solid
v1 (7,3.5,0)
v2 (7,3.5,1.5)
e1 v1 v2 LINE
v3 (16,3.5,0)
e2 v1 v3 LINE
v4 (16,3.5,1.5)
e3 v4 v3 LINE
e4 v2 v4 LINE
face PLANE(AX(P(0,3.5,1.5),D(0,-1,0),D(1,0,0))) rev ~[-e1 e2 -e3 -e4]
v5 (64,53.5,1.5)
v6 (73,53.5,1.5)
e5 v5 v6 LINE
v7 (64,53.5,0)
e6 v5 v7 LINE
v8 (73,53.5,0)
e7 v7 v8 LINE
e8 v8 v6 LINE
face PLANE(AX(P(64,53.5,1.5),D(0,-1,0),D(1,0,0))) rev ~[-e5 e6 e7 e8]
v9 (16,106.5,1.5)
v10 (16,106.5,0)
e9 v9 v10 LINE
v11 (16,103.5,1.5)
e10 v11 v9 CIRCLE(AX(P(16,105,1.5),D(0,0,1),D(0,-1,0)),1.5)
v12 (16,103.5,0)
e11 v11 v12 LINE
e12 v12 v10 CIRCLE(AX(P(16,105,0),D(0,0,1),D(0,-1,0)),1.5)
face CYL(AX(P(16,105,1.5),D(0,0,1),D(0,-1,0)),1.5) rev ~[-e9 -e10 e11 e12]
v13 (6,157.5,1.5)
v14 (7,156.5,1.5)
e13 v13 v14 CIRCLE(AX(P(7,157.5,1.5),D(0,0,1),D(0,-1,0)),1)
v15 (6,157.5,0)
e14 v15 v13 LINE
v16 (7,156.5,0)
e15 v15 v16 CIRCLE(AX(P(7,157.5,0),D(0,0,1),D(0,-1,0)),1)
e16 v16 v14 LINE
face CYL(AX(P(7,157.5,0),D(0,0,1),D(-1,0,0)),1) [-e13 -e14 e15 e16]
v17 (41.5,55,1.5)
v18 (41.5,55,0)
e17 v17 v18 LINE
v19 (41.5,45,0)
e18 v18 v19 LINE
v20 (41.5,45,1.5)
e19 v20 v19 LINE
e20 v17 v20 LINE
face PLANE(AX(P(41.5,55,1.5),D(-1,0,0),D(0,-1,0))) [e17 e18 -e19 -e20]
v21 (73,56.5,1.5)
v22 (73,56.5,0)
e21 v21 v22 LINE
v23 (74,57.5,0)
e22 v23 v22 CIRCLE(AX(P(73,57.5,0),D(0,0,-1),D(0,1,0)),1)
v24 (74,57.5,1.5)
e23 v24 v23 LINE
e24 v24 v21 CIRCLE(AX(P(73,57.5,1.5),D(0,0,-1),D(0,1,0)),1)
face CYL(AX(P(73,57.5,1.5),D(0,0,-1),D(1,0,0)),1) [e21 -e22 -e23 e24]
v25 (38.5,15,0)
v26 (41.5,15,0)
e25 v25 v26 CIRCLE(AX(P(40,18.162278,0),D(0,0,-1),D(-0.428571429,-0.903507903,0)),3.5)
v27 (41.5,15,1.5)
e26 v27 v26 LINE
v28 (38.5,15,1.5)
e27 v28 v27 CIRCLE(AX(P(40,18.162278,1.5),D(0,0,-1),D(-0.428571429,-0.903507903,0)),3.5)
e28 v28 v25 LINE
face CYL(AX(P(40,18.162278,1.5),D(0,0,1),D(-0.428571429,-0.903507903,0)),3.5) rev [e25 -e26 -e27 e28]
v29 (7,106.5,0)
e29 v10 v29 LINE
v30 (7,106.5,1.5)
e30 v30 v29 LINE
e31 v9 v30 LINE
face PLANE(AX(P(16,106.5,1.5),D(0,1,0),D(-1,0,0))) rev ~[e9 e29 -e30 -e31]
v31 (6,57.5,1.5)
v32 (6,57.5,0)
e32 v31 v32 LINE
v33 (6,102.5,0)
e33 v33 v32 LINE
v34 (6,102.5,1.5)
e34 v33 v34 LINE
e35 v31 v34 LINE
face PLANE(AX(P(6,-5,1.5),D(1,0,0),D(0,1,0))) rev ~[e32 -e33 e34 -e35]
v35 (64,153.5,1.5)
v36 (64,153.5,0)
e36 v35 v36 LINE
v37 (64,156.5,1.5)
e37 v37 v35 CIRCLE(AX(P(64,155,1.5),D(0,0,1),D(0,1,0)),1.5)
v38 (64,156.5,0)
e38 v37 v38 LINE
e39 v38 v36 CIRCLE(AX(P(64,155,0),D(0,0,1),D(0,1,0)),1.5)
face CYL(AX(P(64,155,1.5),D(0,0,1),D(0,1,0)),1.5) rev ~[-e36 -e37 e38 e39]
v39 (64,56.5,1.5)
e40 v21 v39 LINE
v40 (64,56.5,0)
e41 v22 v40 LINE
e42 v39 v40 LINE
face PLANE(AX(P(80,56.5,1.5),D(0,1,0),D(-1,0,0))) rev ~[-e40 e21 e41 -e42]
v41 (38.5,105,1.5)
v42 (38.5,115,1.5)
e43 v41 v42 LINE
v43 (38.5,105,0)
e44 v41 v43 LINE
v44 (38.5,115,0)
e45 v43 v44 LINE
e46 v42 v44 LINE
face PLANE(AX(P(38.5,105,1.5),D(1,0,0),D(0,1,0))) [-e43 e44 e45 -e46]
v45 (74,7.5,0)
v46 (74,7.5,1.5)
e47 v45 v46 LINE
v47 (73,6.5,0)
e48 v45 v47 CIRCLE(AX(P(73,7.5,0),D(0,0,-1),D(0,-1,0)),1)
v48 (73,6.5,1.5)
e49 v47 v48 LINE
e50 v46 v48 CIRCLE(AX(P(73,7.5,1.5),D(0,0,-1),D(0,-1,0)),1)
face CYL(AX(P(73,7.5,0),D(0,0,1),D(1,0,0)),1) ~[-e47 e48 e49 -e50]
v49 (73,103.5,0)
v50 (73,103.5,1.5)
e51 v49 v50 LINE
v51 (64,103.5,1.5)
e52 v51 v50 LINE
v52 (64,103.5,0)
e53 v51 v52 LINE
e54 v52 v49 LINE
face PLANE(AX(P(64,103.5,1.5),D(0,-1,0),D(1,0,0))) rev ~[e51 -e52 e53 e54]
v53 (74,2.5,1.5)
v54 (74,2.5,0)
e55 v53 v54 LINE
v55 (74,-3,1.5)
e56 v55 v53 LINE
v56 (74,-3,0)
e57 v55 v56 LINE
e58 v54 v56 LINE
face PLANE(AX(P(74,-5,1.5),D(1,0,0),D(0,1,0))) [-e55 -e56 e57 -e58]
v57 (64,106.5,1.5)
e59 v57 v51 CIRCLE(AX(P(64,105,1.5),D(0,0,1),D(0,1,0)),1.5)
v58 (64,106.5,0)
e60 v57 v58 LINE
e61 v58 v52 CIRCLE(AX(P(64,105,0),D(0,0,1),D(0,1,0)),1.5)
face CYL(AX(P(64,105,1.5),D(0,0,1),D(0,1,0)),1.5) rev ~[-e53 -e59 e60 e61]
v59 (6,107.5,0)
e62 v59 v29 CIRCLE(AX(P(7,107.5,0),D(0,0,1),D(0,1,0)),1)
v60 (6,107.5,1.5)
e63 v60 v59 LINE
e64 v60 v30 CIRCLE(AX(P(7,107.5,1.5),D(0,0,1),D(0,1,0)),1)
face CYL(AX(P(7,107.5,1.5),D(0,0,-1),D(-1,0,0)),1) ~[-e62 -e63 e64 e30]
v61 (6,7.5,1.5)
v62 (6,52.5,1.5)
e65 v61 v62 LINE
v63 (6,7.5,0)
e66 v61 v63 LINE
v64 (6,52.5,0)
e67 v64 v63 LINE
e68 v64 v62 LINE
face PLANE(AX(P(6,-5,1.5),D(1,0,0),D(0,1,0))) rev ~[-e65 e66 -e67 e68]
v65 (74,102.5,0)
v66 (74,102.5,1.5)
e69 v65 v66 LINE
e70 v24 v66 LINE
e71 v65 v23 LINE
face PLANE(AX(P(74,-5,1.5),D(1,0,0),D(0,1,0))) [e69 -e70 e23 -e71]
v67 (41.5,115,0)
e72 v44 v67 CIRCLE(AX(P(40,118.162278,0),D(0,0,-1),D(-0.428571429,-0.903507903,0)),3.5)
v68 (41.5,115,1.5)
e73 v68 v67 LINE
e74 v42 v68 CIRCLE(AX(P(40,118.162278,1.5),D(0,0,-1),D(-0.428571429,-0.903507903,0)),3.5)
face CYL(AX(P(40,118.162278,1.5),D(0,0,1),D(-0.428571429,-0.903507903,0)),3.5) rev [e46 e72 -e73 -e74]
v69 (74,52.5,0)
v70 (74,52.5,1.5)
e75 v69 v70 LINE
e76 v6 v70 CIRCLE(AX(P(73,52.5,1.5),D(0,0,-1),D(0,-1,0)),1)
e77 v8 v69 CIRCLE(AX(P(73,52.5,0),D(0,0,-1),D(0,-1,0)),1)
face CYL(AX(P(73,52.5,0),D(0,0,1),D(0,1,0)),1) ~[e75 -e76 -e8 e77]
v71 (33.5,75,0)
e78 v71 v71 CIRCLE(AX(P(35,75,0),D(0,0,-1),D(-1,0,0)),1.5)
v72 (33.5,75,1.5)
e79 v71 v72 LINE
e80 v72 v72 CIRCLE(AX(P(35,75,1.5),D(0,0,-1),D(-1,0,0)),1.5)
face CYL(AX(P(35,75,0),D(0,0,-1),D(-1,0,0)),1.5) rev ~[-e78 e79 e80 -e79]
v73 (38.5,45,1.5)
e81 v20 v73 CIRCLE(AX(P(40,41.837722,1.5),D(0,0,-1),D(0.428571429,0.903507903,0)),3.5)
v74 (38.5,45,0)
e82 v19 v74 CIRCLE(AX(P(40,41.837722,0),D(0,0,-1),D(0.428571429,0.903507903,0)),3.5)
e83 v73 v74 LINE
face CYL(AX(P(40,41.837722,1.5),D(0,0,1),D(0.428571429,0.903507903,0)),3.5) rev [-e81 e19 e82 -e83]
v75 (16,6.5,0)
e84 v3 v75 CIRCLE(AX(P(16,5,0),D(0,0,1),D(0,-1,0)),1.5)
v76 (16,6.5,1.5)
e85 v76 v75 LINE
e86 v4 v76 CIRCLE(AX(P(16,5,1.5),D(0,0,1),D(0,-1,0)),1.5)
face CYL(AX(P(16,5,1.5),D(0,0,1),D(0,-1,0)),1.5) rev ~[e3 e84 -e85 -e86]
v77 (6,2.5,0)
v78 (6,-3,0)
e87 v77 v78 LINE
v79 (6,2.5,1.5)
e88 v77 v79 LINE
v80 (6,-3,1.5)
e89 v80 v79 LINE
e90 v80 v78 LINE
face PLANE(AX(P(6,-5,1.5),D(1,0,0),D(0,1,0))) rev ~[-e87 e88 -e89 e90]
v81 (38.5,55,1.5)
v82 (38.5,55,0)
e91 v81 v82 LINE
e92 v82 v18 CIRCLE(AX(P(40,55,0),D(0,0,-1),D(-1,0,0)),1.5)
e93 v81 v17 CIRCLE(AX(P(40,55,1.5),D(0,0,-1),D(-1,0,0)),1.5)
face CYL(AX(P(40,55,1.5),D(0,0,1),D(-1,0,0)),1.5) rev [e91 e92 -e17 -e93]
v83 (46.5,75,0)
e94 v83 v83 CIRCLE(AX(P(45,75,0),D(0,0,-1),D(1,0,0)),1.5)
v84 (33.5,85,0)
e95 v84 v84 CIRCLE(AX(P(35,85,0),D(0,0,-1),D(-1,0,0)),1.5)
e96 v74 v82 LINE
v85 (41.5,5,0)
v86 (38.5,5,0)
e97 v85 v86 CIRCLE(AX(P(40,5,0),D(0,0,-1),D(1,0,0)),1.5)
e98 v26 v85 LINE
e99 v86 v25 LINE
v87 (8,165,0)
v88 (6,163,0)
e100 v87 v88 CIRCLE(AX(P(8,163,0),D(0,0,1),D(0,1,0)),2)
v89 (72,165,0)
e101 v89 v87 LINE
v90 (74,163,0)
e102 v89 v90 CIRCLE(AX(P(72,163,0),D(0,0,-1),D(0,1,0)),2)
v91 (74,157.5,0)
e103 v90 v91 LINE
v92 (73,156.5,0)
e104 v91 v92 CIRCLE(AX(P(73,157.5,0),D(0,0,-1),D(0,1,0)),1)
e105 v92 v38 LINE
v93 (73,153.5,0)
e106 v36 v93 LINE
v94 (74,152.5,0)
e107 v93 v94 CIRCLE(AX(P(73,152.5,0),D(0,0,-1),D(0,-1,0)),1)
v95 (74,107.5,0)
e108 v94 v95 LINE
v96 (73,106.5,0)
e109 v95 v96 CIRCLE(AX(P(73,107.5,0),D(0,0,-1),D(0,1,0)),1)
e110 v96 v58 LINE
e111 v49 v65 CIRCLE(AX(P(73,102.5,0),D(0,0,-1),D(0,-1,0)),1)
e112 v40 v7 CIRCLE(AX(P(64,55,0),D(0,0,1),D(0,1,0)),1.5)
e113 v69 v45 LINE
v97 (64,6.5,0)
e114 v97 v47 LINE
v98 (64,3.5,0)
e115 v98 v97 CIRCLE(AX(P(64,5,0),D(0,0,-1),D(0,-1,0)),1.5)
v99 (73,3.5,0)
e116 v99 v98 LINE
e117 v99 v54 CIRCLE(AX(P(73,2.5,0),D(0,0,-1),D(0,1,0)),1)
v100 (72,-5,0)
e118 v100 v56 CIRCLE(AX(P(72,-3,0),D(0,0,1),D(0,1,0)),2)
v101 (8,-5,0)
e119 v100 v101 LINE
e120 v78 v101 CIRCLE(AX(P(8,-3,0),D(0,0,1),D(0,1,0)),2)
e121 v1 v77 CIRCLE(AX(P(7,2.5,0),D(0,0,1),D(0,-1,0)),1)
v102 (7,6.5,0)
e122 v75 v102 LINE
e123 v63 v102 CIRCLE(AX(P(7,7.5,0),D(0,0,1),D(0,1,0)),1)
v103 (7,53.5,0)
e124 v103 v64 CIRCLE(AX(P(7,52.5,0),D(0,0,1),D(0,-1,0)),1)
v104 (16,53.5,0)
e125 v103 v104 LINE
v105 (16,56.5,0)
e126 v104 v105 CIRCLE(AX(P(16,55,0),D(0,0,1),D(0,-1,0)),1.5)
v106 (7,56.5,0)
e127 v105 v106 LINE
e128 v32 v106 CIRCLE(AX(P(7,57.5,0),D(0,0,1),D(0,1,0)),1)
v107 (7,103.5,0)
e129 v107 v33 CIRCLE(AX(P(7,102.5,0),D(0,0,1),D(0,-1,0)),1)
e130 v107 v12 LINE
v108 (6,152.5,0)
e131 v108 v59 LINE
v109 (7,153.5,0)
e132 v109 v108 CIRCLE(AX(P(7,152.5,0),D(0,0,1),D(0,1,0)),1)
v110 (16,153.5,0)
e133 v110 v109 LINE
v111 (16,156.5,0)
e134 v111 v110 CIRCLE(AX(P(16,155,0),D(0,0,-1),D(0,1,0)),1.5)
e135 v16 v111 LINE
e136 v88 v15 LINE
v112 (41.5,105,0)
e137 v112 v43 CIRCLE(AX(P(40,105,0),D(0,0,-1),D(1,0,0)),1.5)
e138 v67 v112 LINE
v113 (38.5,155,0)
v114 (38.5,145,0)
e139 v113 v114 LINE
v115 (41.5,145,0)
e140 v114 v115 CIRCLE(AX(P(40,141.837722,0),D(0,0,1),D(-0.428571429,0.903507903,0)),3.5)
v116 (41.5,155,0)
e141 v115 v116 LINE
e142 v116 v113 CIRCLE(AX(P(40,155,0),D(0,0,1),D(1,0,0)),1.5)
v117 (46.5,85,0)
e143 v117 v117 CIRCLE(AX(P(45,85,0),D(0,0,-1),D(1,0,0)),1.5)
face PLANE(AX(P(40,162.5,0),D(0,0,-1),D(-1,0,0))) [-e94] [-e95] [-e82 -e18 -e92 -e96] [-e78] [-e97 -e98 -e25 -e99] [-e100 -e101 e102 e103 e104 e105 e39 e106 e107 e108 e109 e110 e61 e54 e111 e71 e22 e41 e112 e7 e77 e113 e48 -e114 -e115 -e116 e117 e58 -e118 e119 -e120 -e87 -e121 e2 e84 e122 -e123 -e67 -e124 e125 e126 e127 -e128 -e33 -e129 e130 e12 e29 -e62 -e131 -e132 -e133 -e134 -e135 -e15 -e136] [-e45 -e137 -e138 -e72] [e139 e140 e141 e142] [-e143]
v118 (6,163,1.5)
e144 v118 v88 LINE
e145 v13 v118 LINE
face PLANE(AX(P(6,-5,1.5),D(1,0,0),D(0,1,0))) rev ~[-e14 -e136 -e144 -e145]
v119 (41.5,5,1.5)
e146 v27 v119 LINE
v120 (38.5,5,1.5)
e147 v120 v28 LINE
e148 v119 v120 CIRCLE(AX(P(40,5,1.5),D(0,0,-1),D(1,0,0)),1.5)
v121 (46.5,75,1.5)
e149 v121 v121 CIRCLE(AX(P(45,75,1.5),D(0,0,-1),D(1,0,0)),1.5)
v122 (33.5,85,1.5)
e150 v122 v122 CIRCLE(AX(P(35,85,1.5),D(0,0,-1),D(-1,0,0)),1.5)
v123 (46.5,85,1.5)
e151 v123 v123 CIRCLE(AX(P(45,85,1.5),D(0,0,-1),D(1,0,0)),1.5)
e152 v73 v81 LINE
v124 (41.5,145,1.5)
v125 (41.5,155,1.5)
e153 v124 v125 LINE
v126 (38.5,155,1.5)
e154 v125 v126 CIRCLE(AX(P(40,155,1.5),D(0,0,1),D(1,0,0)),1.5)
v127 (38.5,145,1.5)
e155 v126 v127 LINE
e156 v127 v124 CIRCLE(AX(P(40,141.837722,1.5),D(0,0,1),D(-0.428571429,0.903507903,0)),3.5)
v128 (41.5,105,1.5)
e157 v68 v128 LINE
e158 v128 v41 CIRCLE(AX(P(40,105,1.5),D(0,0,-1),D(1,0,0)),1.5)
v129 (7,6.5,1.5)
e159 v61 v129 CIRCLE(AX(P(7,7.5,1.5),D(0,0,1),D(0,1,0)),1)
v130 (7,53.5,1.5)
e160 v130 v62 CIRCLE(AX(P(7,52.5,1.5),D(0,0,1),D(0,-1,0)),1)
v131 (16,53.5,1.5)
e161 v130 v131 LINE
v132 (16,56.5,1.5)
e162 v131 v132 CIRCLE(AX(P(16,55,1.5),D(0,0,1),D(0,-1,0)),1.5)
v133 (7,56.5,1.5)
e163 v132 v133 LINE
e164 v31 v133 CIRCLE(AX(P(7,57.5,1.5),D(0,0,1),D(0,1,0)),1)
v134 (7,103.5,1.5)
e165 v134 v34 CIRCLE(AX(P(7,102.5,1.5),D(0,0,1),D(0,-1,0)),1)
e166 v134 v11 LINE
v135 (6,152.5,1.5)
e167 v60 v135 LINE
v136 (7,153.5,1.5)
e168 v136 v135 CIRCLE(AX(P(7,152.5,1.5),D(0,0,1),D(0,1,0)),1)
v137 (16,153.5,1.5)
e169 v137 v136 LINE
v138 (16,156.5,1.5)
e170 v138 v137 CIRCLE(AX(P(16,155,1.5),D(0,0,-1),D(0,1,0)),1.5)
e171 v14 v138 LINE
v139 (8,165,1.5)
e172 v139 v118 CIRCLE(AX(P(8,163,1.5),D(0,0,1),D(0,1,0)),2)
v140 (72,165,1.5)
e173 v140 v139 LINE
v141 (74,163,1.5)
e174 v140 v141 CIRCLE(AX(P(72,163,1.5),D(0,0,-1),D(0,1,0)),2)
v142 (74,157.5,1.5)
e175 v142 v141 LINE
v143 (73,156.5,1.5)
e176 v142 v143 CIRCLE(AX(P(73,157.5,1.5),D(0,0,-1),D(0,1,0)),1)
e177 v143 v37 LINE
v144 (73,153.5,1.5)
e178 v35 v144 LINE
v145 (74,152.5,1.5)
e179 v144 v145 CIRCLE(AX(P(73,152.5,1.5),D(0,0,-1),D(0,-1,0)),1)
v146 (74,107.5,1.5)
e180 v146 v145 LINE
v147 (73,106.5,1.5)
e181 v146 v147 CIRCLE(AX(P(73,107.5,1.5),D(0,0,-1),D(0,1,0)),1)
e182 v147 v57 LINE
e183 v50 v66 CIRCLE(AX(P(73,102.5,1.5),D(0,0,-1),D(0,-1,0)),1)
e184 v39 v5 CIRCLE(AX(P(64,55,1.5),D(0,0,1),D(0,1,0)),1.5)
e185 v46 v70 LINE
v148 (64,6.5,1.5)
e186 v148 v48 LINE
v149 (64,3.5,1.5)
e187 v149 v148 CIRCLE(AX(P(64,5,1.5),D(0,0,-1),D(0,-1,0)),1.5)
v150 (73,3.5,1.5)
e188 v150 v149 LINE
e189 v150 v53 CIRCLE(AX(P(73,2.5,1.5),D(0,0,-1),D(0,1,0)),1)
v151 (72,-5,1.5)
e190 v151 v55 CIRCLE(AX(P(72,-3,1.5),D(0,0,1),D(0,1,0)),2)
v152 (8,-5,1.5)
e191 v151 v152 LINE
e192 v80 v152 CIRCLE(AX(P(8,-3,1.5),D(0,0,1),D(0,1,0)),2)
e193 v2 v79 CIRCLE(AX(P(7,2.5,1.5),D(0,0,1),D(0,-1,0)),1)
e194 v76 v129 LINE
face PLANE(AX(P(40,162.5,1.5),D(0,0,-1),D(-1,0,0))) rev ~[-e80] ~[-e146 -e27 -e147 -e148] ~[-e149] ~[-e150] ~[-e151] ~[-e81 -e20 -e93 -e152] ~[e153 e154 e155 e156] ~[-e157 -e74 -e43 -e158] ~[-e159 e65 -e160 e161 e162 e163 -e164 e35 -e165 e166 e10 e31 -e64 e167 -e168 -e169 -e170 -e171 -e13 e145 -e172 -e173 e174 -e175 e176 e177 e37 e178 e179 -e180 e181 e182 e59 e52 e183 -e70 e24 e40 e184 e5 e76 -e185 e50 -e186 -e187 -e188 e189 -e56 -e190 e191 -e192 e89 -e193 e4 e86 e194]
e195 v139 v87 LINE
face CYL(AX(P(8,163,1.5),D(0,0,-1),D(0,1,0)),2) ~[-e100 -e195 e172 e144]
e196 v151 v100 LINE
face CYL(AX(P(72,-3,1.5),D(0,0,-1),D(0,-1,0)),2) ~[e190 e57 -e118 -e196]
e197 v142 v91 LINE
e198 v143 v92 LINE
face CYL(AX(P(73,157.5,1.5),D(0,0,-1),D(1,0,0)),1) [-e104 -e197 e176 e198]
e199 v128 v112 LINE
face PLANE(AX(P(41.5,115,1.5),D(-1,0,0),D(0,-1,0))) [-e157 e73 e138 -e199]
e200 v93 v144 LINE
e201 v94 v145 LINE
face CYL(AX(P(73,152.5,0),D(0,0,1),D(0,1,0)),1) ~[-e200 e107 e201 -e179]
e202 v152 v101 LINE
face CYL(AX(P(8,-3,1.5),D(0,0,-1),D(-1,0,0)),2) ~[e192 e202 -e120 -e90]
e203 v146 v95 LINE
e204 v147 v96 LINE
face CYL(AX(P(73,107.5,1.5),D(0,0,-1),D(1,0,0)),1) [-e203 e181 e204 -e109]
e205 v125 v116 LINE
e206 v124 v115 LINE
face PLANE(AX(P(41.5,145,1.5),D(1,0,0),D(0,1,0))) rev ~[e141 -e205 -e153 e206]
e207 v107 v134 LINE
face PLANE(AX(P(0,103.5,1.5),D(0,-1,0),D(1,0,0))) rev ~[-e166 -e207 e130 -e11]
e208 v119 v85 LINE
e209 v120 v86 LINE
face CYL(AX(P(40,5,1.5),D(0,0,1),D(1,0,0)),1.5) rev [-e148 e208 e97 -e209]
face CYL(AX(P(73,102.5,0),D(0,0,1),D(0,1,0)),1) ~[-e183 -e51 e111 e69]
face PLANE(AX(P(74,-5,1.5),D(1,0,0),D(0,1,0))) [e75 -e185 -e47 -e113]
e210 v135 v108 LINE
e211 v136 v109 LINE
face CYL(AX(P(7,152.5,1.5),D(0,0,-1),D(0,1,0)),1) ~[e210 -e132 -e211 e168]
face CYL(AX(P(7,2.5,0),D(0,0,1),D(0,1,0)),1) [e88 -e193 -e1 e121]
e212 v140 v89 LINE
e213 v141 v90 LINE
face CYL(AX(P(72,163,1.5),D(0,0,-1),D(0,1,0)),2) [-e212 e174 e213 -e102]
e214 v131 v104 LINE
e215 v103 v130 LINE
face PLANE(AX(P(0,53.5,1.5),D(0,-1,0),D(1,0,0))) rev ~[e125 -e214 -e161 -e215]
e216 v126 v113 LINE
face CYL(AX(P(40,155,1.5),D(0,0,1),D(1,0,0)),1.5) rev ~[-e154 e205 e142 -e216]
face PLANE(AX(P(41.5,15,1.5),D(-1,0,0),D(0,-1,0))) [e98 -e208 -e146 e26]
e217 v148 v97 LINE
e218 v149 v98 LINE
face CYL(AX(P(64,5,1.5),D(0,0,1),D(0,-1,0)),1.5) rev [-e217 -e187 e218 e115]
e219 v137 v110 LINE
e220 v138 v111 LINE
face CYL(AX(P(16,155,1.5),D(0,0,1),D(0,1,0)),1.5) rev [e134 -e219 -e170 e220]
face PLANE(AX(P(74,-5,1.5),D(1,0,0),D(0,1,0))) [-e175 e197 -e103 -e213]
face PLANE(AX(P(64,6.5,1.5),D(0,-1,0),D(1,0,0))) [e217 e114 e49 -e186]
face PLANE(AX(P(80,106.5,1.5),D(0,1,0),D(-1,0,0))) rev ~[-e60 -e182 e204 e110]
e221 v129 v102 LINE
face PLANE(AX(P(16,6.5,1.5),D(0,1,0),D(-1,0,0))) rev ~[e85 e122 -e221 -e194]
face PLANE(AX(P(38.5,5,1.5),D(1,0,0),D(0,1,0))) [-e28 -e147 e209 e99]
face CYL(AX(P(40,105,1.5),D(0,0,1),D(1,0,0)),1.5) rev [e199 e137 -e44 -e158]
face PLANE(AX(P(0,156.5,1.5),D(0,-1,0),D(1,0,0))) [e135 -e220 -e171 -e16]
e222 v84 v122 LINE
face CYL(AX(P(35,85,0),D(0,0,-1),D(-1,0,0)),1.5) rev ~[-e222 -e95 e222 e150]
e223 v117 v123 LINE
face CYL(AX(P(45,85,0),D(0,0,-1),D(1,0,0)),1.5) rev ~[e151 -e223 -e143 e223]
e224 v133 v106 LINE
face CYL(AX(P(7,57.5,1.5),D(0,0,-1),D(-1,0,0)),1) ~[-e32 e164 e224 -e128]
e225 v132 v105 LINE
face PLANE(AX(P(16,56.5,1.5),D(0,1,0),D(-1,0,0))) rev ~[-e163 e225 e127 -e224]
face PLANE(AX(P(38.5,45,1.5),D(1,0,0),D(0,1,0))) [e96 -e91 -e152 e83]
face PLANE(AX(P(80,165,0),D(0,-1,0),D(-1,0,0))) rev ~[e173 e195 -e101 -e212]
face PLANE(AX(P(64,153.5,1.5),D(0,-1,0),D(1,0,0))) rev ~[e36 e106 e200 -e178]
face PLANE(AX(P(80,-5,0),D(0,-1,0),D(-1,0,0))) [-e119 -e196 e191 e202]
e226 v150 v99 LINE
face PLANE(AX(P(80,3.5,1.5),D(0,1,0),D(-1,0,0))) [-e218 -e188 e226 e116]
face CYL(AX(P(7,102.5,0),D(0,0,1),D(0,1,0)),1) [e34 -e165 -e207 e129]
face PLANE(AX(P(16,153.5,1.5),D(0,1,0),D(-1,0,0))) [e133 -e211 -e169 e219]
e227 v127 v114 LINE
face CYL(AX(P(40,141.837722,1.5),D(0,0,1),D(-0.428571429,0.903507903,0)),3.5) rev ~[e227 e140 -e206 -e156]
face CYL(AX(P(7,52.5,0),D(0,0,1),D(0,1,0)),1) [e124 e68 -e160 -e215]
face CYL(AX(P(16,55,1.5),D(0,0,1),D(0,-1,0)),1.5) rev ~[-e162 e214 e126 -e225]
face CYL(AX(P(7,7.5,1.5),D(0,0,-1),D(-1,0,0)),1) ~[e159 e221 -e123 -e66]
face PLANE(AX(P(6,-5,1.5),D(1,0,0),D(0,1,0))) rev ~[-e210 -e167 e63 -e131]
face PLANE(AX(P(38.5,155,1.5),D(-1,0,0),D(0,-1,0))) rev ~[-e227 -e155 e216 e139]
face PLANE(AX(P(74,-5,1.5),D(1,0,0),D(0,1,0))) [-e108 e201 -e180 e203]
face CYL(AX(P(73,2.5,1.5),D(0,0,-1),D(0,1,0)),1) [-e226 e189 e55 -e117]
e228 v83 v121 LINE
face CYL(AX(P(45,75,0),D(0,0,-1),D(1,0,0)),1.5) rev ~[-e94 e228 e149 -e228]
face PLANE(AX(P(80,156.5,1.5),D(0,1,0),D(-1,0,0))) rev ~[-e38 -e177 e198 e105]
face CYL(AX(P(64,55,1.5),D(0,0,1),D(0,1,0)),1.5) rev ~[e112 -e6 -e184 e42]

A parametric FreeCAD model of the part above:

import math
import FreeCAD as App
import Part
import Sketcher

V = App.Vector


def edges_at(feature, points):
    """Names of the edges that pass closest to the given points."""
    edges = feature.Shape.Edges
    near = lambda p: min(range(len(edges)), key=lambda i: edges[i].distToShape(Part.Vertex(*p))[0])
    return sorted({f"Edge{near(p) + 1}" for p in points})


def add_polygon(sketch, points):
    """Adds a closed chain of lines whose ends are joined by coincident constraints."""
    first, n = sketch.GeometryCount, len(points)
    for a, b in zip(points, points[1:] + points[:1]):
        sketch.addGeometry(Part.LineSegment(App.Vector(*a, 0), App.Vector(*b, 0)), False)
    for i in range(n):
        sketch.addConstraint(Sketcher.Constraint("Coincident", first + i, 2, first + (i + 1) % n, 1))

doc = App.newDocument("Part")
body = doc.addObject("PartDesign::Body", "Body")

sketch1 = body.newObject("Sketcher::SketchObject", "Sketch")
sketch1.AttachmentSupport = (doc.getObject("XY_Plane"), [""])
sketch1.MapMode = "FlatFace"
add_polygon(sketch1, [(100, 90), (80, 90), (80, 160), (0, 160), (0, 90), (-20, 90), (-20, 70), (0, 70), (0, 0), (80, 0), (80, 70), (100, 70)])
sketch1.addConstraint(Sketcher.Constraint("Horizontal", 0))
sketch1.addConstraint(Sketcher.Constraint("Vertical", 1))
sketch1.addConstraint(Sketcher.Constraint("Horizontal", 2))
sketch1.addConstraint(Sketcher.Constraint("Vertical", 3))
sketch1.addConstraint(Sketcher.Constraint("Horizontal", 4))
sketch1.addConstraint(Sketcher.Constraint("Vertical", 5))
sketch1.addConstraint(Sketcher.Constraint("Horizontal", 6))
sketch1.addConstraint(Sketcher.Constraint("Vertical", 7))
sketch1.addConstraint(Sketcher.Constraint("Horizontal", 8))
sketch1.addConstraint(Sketcher.Constraint("Vertical", 9))
sketch1.addConstraint(Sketcher.Constraint("Horizontal", 10))
sketch1.addConstraint(Sketcher.Constraint("Vertical", 11))
sketch1.addConstraint(Sketcher.Constraint("Coincident", 7, 2, -1, 1))
sketch1.addConstraint(Sketcher.Constraint("PointOnObject", 2, 2, -2))
sketch1.addConstraint(Sketcher.Constraint("Horizontal", 0, 2, 3, 2))
sketch1.addConstraint(Sketcher.Constraint("Horizontal", 6, 2, 9, 2))
sketch1.addConstraint(Sketcher.Constraint("Vertical", 1, 2, 8, 2))
sketch1.addConstraint(Sketcher.Constraint("Equal", 0, 4))
sketch1.addConstraint(Sketcher.Constraint("Equal", 10, 5))
sketch1.addConstraint(Sketcher.Constraint("Equal", 3, 7))
sketch1.addConstraint(Sketcher.Constraint("DistanceX", 0, 2, 0, 1, 20.0))
sketch1.addConstraint(Sketcher.Constraint("DistanceX", 2, 2, 2, 1, 80.0))
sketch1.addConstraint(Sketcher.Constraint("DistanceY", 1, 1, 1, 2, 70.0))
pad1 = body.newObject("PartDesign::Pad", "Pad")
pad1.Profile = sketch1
pad1.Length = 1.5

sketch2 = body.newObject("Sketcher::SketchObject", "Sketch001")
sketch2.AttachmentSupport = (doc.getObject("XY_Plane"), [""])
sketch2.MapMode = "FlatFace"
sketch2.AttachmentOffset = App.Placement(V(0, 0, 1.5), App.Rotation())
sketch2.addGeometry(Part.LineSegment(V(64, 153.5, 0), V(80, 153.5, 0)), False)
sketch2.addGeometry(Part.LineSegment(V(80, 153.5, 0), V(80, 156.5, 0)), False)
sketch2.addGeometry(Part.LineSegment(V(80, 156.5, 0), V(64, 156.5, 0)), False)
sketch2.addGeometry(Part.ArcOfCircle(Part.Circle(V(64, 155, 0), V(0, 0, 1), 1.5), math.radians(90), math.radians(270)), False)
sketch2.addGeometry(Part.LineSegment(V(38.5, 15, 0), V(38.5, 5, 0)), False)
sketch2.addGeometry(Part.ArcOfCircle(Part.Circle(V(40, 5, 0), V(0, 0, 1), 1.5), math.radians(180), math.radians(360)), False)
sketch2.addGeometry(Part.LineSegment(V(41.5, 5, 0), V(41.5, 15, 0)), False)
sketch2.addGeometry(Part.ArcOfCircle(Part.Circle(V(40, 18.162278, 0), V(0, 0, 1), 3.5), math.radians(-64.623066), math.radians(244.623066)), False)
sketch2.addGeometry(Part.LineSegment(V(0, 153.5, 0), V(16, 153.5, 0)), False)
sketch2.addGeometry(Part.ArcOfCircle(Part.Circle(V(16, 155, 0), V(0, 0, 1), 1.5), math.radians(-90), math.radians(90)), False)
sketch2.addGeometry(Part.LineSegment(V(16, 156.5, 0), V(0, 156.5, 0)), False)
sketch2.addGeometry(Part.LineSegment(V(0, 156.5, 0), V(0, 153.5, 0)), False)
sketch2.addGeometry(Part.LineSegment(V(64, 103.5, 0), V(80, 103.5, 0)), False)
sketch2.addGeometry(Part.LineSegment(V(80, 103.5, 0), V(80, 106.5, 0)), False)
sketch2.addGeometry(Part.LineSegment(V(80, 106.5, 0), V(64, 106.5, 0)), False)
sketch2.addGeometry(Part.ArcOfCircle(Part.Circle(V(64, 105, 0), V(0, 0, 1), 1.5), math.radians(90), math.radians(270)), False)
sketch2.addGeometry(Part.LineSegment(V(16, 106.5, 0), V(0, 106.5, 0)), False)
sketch2.addGeometry(Part.LineSegment(V(0, 106.5, 0), V(0, 103.5, 0)), False)
sketch2.addGeometry(Part.LineSegment(V(0, 103.5, 0), V(16, 103.5, 0)), False)
sketch2.addGeometry(Part.ArcOfCircle(Part.Circle(V(16, 105, 0), V(0, 0, 1), 1.5), math.radians(-90), math.radians(90)), False)
sketch2.addGeometry(Part.LineSegment(V(16, 56.5, 0), V(0, 56.5, 0)), False)
sketch2.addGeometry(Part.LineSegment(V(0, 56.5, 0), V(0, 53.5, 0)), False)
sketch2.addGeometry(Part.LineSegment(V(0, 53.5, 0), V(16, 53.5, 0)), False)
sketch2.addGeometry(Part.ArcOfCircle(Part.Circle(V(16, 55, 0), V(0, 0, 1), 1.5), math.radians(-90), math.radians(90)), False)
sketch2.addGeometry(Part.LineSegment(V(64, 53.5, 0), V(80, 53.5, 0)), False)
sketch2.addGeometry(Part.LineSegment(V(80, 53.5, 0), V(80, 56.5, 0)), False)
sketch2.addGeometry(Part.LineSegment(V(80, 56.5, 0), V(64, 56.5, 0)), False)
sketch2.addGeometry(Part.ArcOfCircle(Part.Circle(V(64, 55, 0), V(0, 0, 1), 1.5), math.radians(90), math.radians(270)), False)
sketch2.addGeometry(Part.LineSegment(V(16, 6.5, 0), V(0, 6.5, 0)), False)
sketch2.addGeometry(Part.LineSegment(V(0, 6.5, 0), V(0, 3.5, 0)), False)
sketch2.addGeometry(Part.LineSegment(V(0, 3.5, 0), V(16, 3.5, 0)), False)
sketch2.addGeometry(Part.ArcOfCircle(Part.Circle(V(16, 5, 0), V(0, 0, 1), 1.5), math.radians(-90), math.radians(90)), False)
sketch2.addGeometry(Part.LineSegment(V(80, 6.5, 0), V(64, 6.5, 0)), False)
sketch2.addGeometry(Part.ArcOfCircle(Part.Circle(V(64, 5, 0), V(0, 0, 1), 1.5), math.radians(90), math.radians(270)), False)
sketch2.addGeometry(Part.LineSegment(V(64, 3.5, 0), V(80, 3.5, 0)), False)
sketch2.addGeometry(Part.LineSegment(V(80, 3.5, 0), V(80, 6.5, 0)), False)
sketch2.addGeometry(Part.LineSegment(V(38.5, 155, 0), V(38.5, 145, 0)), False)
sketch2.addGeometry(Part.ArcOfCircle(Part.Circle(V(40, 141.837722, 0), V(0, 0, 1), 3.5), math.radians(115.376934), math.radians(424.623066)), False)
sketch2.addGeometry(Part.LineSegment(V(41.5, 145, 0), V(41.5, 155, 0)), False)
sketch2.addGeometry(Part.ArcOfCircle(Part.Circle(V(40, 155, 0), V(0, 0, 1), 1.5), math.radians(0), math.radians(180)), False)
sketch2.addGeometry(Part.LineSegment(V(41.5, 45, 0), V(41.5, 55, 0)), False)
sketch2.addGeometry(Part.ArcOfCircle(Part.Circle(V(40, 55, 0), V(0, 0, 1), 1.5), math.radians(0), math.radians(180)), False)
sketch2.addGeometry(Part.LineSegment(V(38.5, 55, 0), V(38.5, 45, 0)), False)
sketch2.addGeometry(Part.ArcOfCircle(Part.Circle(V(40, 41.837722, 0), V(0, 0, 1), 3.5), math.radians(115.376934), math.radians(424.623066)), False)
sketch2.addGeometry(Part.LineSegment(V(38.5, 115, 0), V(38.5, 105, 0)), False)
sketch2.addGeometry(Part.ArcOfCircle(Part.Circle(V(40, 105, 0), V(0, 0, 1), 1.5), math.radians(180), math.radians(360)), False)
sketch2.addGeometry(Part.LineSegment(V(41.5, 105, 0), V(41.5, 115, 0)), False)
sketch2.addGeometry(Part.ArcOfCircle(Part.Circle(V(40, 118.162278, 0), V(0, 0, 1), 3.5), math.radians(-64.623066), math.radians(244.623066)), False)
sketch2.addConstraint(Sketcher.Constraint("Coincident", 0, 2, 1, 1))
sketch2.addConstraint(Sketcher.Constraint("Coincident", 1, 2, 2, 1))
sketch2.addConstraint(Sketcher.Constraint("Tangent", 2, 2, 3, 1))
sketch2.addConstraint(Sketcher.Constraint("Tangent", 3, 2, 0, 1))
sketch2.addConstraint(Sketcher.Constraint("Tangent", 4, 2, 5, 1))
sketch2.addConstraint(Sketcher.Constraint("Tangent", 5, 2, 6, 1))
sketch2.addConstraint(Sketcher.Constraint("Coincident", 6, 2, 7, 1))
sketch2.addConstraint(Sketcher.Constraint("Coincident", 7, 2, 4, 1))
sketch2.addConstraint(Sketcher.Constraint("Tangent", 8, 2, 9, 1))
sketch2.addConstraint(Sketcher.Constraint("Tangent", 9, 2, 10, 1))
sketch2.addConstraint(Sketcher.Constraint("Coincident", 10, 2, 11, 1))
sketch2.addConstraint(Sketcher.Constraint("Coincident", 11, 2, 8, 1))
sketch2.addConstraint(Sketcher.Constraint("Coincident", 12, 2, 13, 1))
sketch2.addConstraint(Sketcher.Constraint("Coincident", 13, 2, 14, 1))
sketch2.addConstraint(Sketcher.Constraint("Tangent", 14, 2, 15, 1))
sketch2.addConstraint(Sketcher.Constraint("Tangent", 15, 2, 12, 1))
sketch2.addConstraint(Sketcher.Constraint("Coincident", 16, 2, 17, 1))
sketch2.addConstraint(Sketcher.Constraint("Coincident", 17, 2, 18, 1))
sketch2.addConstraint(Sketcher.Constraint("Tangent", 18, 2, 19, 1))
sketch2.addConstraint(Sketcher.Constraint("Tangent", 19, 2, 16, 1))
sketch2.addConstraint(Sketcher.Constraint("Coincident", 20, 2, 21, 1))
sketch2.addConstraint(Sketcher.Constraint("Coincident", 21, 2, 22, 1))
sketch2.addConstraint(Sketcher.Constraint("Tangent", 22, 2, 23, 1))
sketch2.addConstraint(Sketcher.Constraint("Tangent", 23, 2, 20, 1))
sketch2.addConstraint(Sketcher.Constraint("Coincident", 24, 2, 25, 1))
sketch2.addConstraint(Sketcher.Constraint("Coincident", 25, 2, 26, 1))
sketch2.addConstraint(Sketcher.Constraint("Tangent", 26, 2, 27, 1))
sketch2.addConstraint(Sketcher.Constraint("Tangent", 27, 2, 24, 1))
sketch2.addConstraint(Sketcher.Constraint("Coincident", 28, 2, 29, 1))
sketch2.addConstraint(Sketcher.Constraint("Coincident", 29, 2, 30, 1))
sketch2.addConstraint(Sketcher.Constraint("Tangent", 30, 2, 31, 1))
sketch2.addConstraint(Sketcher.Constraint("Tangent", 31, 2, 28, 1))
sketch2.addConstraint(Sketcher.Constraint("Tangent", 32, 2, 33, 1))
sketch2.addConstraint(Sketcher.Constraint("Tangent", 33, 2, 34, 1))
sketch2.addConstraint(Sketcher.Constraint("Coincident", 34, 2, 35, 1))
sketch2.addConstraint(Sketcher.Constraint("Coincident", 35, 2, 32, 1))
sketch2.addConstraint(Sketcher.Constraint("Coincident", 36, 2, 37, 1))
sketch2.addConstraint(Sketcher.Constraint("Coincident", 37, 2, 38, 1))
sketch2.addConstraint(Sketcher.Constraint("Tangent", 38, 2, 39, 1))
sketch2.addConstraint(Sketcher.Constraint("Tangent", 39, 2, 36, 1))
sketch2.addConstraint(Sketcher.Constraint("Tangent", 40, 2, 41, 1))
sketch2.addConstraint(Sketcher.Constraint("Tangent", 41, 2, 42, 1))
sketch2.addConstraint(Sketcher.Constraint("Coincident", 42, 2, 43, 1))
sketch2.addConstraint(Sketcher.Constraint("Coincident", 43, 2, 40, 1))
sketch2.addConstraint(Sketcher.Constraint("Tangent", 44, 2, 45, 1))
sketch2.addConstraint(Sketcher.Constraint("Tangent", 45, 2, 46, 1))
sketch2.addConstraint(Sketcher.Constraint("Coincident", 46, 2, 47, 1))
sketch2.addConstraint(Sketcher.Constraint("Coincident", 47, 2, 44, 1))
sketch2.addConstraint(Sketcher.Constraint("Horizontal", 0))
sketch2.addConstraint(Sketcher.Constraint("Vertical", 1))
sketch2.addConstraint(Sketcher.Constraint("Horizontal", 2))
sketch2.addConstraint(Sketcher.Constraint("Vertical", 4))
sketch2.addConstraint(Sketcher.Constraint("Vertical", 6))
sketch2.addConstraint(Sketcher.Constraint("Horizontal", 8))
sketch2.addConstraint(Sketcher.Constraint("Horizontal", 10))
sketch2.addConstraint(Sketcher.Constraint("Vertical", 11))
sketch2.addConstraint(Sketcher.Constraint("Horizontal", 12))
sketch2.addConstraint(Sketcher.Constraint("Vertical", 13))
sketch2.addConstraint(Sketcher.Constraint("Horizontal", 14))
sketch2.addConstraint(Sketcher.Constraint("Horizontal", 16))
sketch2.addConstraint(Sketcher.Constraint("Vertical", 17))
sketch2.addConstraint(Sketcher.Constraint("Horizontal", 18))
sketch2.addConstraint(Sketcher.Constraint("Horizontal", 20))
sketch2.addConstraint(Sketcher.Constraint("Vertical", 21))
sketch2.addConstraint(Sketcher.Constraint("Horizontal", 22))
sketch2.addConstraint(Sketcher.Constraint("Horizontal", 24))
sketch2.addConstraint(Sketcher.Constraint("Vertical", 25))
sketch2.addConstraint(Sketcher.Constraint("Horizontal", 26))
sketch2.addConstraint(Sketcher.Constraint("Horizontal", 28))
sketch2.addConstraint(Sketcher.Constraint("Vertical", 29))
sketch2.addConstraint(Sketcher.Constraint("Horizontal", 30))
sketch2.addConstraint(Sketcher.Constraint("Horizontal", 32))
sketch2.addConstraint(Sketcher.Constraint("Horizontal", 34))
sketch2.addConstraint(Sketcher.Constraint("Vertical", 35))
sketch2.addConstraint(Sketcher.Constraint("Vertical", 36))
sketch2.addConstraint(Sketcher.Constraint("Vertical", 38))
sketch2.addConstraint(Sketcher.Constraint("Vertical", 40))
sketch2.addConstraint(Sketcher.Constraint("Vertical", 42))
sketch2.addConstraint(Sketcher.Constraint("Vertical", 44))
sketch2.addConstraint(Sketcher.Constraint("Vertical", 46))
sketch2.addConstraint(Sketcher.Constraint("Equal", 3, 5))
sketch2.addConstraint(Sketcher.Constraint("Equal", 5, 9))
sketch2.addConstraint(Sketcher.Constraint("Equal", 9, 15))
sketch2.addConstraint(Sketcher.Constraint("Equal", 15, 19))
sketch2.addConstraint(Sketcher.Constraint("Equal", 19, 23))
sketch2.addConstraint(Sketcher.Constraint("Equal", 23, 27))
sketch2.addConstraint(Sketcher.Constraint("Equal", 27, 31))
sketch2.addConstraint(Sketcher.Constraint("Equal", 31, 33))
sketch2.addConstraint(Sketcher.Constraint("Equal", 7, 37))
sketch2.addConstraint(Sketcher.Constraint("Equal", 33, 39))
sketch2.addConstraint(Sketcher.Constraint("Equal", 39, 41))
sketch2.addConstraint(Sketcher.Constraint("Equal", 37, 43))
sketch2.addConstraint(Sketcher.Constraint("Equal", 41, 45))
sketch2.addConstraint(Sketcher.Constraint("Equal", 43, 47))
sketch2.addConstraint(Sketcher.Constraint("PointOnObject", 10, 2, -2))
sketch2.addConstraint(Sketcher.Constraint("PointOnObject", 16, 2, -2))
sketch2.addConstraint(Sketcher.Constraint("PointOnObject", 20, 2, -2))
sketch2.addConstraint(Sketcher.Constraint("PointOnObject", 28, 2, -2))
sketch2.addConstraint(Sketcher.Constraint("Horizontal", 3, 3, 9, 3))
sketch2.addConstraint(Sketcher.Constraint("Horizontal", 15, 3, 19, 3))
sketch2.addConstraint(Sketcher.Constraint("Horizontal", 23, 3, 27, 3))
sketch2.addConstraint(Sketcher.Constraint("Horizontal", 5, 3, 31, 3))
sketch2.addConstraint(Sketcher.Constraint("Horizontal", 31, 3, 33, 3))
sketch2.addConstraint(Sketcher.Constraint("Horizontal", 9, 3, 39, 3))
sketch2.addConstraint(Sketcher.Constraint("Horizontal", 27, 3, 41, 3))
sketch2.addConstraint(Sketcher.Constraint("Horizontal", 19, 3, 45, 3))
sketch2.addConstraint(Sketcher.Constraint("Horizontal", 6, 2, 7, 2))
sketch2.addConstraint(Sketcher.Constraint("Horizontal", 36, 2, 37, 2))
sketch2.addConstraint(Sketcher.Constraint("Horizontal", 42, 2, 43, 2))
sketch2.addConstraint(Sketcher.Constraint("Horizontal", 46, 2, 47, 2))
sketch2.addConstraint(Sketcher.Constraint("Vertical", 3, 3, 15, 3))
sketch2.addConstraint(Sketcher.Constraint("Vertical", 9, 3, 19, 3))
sketch2.addConstraint(Sketcher.Constraint("Vertical", 19, 3, 23, 3))
sketch2.addConstraint(Sketcher.Constraint("Vertical", 15, 3, 27, 3))
sketch2.addConstraint(Sketcher.Constraint("Vertical", 23, 3, 31, 3))
sketch2.addConstraint(Sketcher.Constraint("Vertical", 27, 3, 33, 3))
sketch2.addConstraint(Sketcher.Constraint("Vertical", 7, 3, 37, 3))
sketch2.addConstraint(Sketcher.Constraint("Vertical", 39, 3, 41, 3))
sketch2.addConstraint(Sketcher.Constraint("Vertical", 43, 3, 45, 3))
sketch2.addConstraint(Sketcher.Constraint("Vertical", 1, 2, 12, 2))
sketch2.addConstraint(Sketcher.Constraint("Vertical", 13, 2, 24, 2))
sketch2.addConstraint(Sketcher.Constraint("Vertical", 25, 2, 34, 2))
sketch2.addConstraint(Sketcher.Constraint("Equal", 2, 8))
sketch2.addConstraint(Sketcher.Constraint("Equal", 6, 36))
sketch2.addConstraint(Sketcher.Constraint("Equal", 38, 40))
sketch2.addConstraint(Sketcher.Constraint("Equal", 42, 44))
sketch2.addConstraint(Sketcher.Constraint("Radius", 3, 1.5))
sketch2.addConstraint(Sketcher.Constraint("Radius", 7, 3.5))
sketch2.addConstraint(Sketcher.Constraint("DistanceX", 0, 1, 0, 2, 16.0))
sketch2.addConstraint(Sketcher.Constraint("DistanceY", 4, 2, 4, 1, 10.0))
sketch2.addConstraint(Sketcher.Constraint("DistanceX", -1, 1, 3, 3, 64.0))
sketch2.addConstraint(Sketcher.Constraint("DistanceY", -1, 1, 3, 3, 155.0))
sketch2.addConstraint(Sketcher.Constraint("DistanceX", -1, 1, 5, 3, 40.0))
sketch2.addConstraint(Sketcher.Constraint("DistanceY", -1, 1, 5, 3, 5.0))
sketch2.addConstraint(Sketcher.Constraint("DistanceY", -1, 1, 15, 3, 105.0))
sketch2.addConstraint(Sketcher.Constraint("DistanceY", -1, 1, 23, 3, 55.0))
pocket1 = body.newObject("PartDesign::Pocket", "Pocket")
pocket1.Profile = sketch2
pocket1.Length = 1.5

sketch3 = body.newObject("Sketcher::SketchObject", "Sketch002")
sketch3.AttachmentSupport = (doc.getObject("XY_Plane"), [""])
sketch3.MapMode = "FlatFace"
sketch3.AttachmentOffset = App.Placement(V(0, 0, 1.5), App.Rotation())
sketch3.addGeometry(Part.Circle(V(90, 80, 0), V(0, 0, 1), 2), False)
sketch3.addGeometry(Part.Circle(V(-10, 80, 0), V(0, 0, 1), 2), False)
sketch3.addConstraint(Sketcher.Constraint("Equal", 0, 1))
sketch3.addConstraint(Sketcher.Constraint("Horizontal", 0, 3, 1, 3))
sketch3.addConstraint(Sketcher.Constraint("Diameter", 0, 4.0))
sketch3.addConstraint(Sketcher.Constraint("DistanceX", -1, 1, 0, 3, 90.0))
sketch3.addConstraint(Sketcher.Constraint("DistanceY", -1, 1, 0, 3, 80.0))
sketch3.addConstraint(Sketcher.Constraint("DistanceX", 1, 3, -1, 1, 10.0))
pocket2 = body.newObject("PartDesign::Pocket", "Pocket001")
pocket2.Profile = sketch3
pocket2.Length = 1.5

sketch4 = body.newObject("Sketcher::SketchObject", "Sketch003")
sketch4.AttachmentSupport = (doc.getObject("XY_Plane"), [""])
sketch4.MapMode = "FlatFace"
add_polygon(sketch4, [(80, 165), (80, 160), (0, 160), (0, 165)])
add_polygon(sketch4, [(80, 0), (80, -5), (0, -5), (0, 0)])
sketch4.addConstraint(Sketcher.Constraint("Vertical", 0))
sketch4.addConstraint(Sketcher.Constraint("Horizontal", 1))
sketch4.addConstraint(Sketcher.Constraint("Vertical", 2))
sketch4.addConstraint(Sketcher.Constraint("Horizontal", 3))
sketch4.addConstraint(Sketcher.Constraint("Vertical", 4))
sketch4.addConstraint(Sketcher.Constraint("Horizontal", 5))
sketch4.addConstraint(Sketcher.Constraint("Vertical", 6))
sketch4.addConstraint(Sketcher.Constraint("Horizontal", 7))
sketch4.addConstraint(Sketcher.Constraint("Coincident", 6, 2, -1, 1))
sketch4.addConstraint(Sketcher.Constraint("PointOnObject", 1, 2, -2))
sketch4.addConstraint(Sketcher.Constraint("Vertical", 3, 2, 4, 2))
sketch4.addConstraint(Sketcher.Constraint("Equal", 2, 4))
sketch4.addConstraint(Sketcher.Constraint("DistanceX", 1, 2, 1, 1, 80.0))
sketch4.addConstraint(Sketcher.Constraint("DistanceY", 0, 2, 0, 1, 5.0))
sketch4.addConstraint(Sketcher.Constraint("DistanceY", -1, 1, 0, 2, 160.0))
pad2 = body.newObject("PartDesign::Pad", "Pad001")
pad2.Profile = sketch4
pad2.Length = 1.5
doc.recompute()

fillet = body.newObject("PartDesign::Fillet", "Fillet")
fillet.Base = (pad2, edges_at(pad2, [
    (0, 165, 0.75),
    (80, 165, 0.75),
    (0, -5, 0.75),
    (80, -5, 0.75),
]))
fillet.Radius = 2

sketch5 = body.newObject("Sketcher::SketchObject", "Sketch004")
sketch5.AttachmentSupport = (doc.getObject("XY_Plane"), [""])
sketch5.MapMode = "FlatFace"
sketch5.AttachmentOffset = App.Placement(V(0, 0, 1.5), App.Rotation())
add_polygon(sketch5, [(-41.809, 186.809), (-41.809, -26.809), (121.809, -26.809), (121.809, 186.809)])
add_polygon(sketch5, [(80, -5), (0, -5), (0, 165), (80, 165)])
sketch5.addConstraint(Sketcher.Constraint("Vertical", 0))
sketch5.addConstraint(Sketcher.Constraint("Horizontal", 1))
sketch5.addConstraint(Sketcher.Constraint("Vertical", 2))
sketch5.addConstraint(Sketcher.Constraint("Horizontal", 3))
sketch5.addConstraint(Sketcher.Constraint("Horizontal", 4))
sketch5.addConstraint(Sketcher.Constraint("Vertical", 5))
sketch5.addConstraint(Sketcher.Constraint("Horizontal", 6))
sketch5.addConstraint(Sketcher.Constraint("Vertical", 7))
sketch5.addConstraint(Sketcher.Constraint("PointOnObject", 4, 2, -2))
sketch5.addConstraint(Sketcher.Constraint("DistanceX", 4, 2, 4, 1, 80.0))
sketch5.addConstraint(Sketcher.Constraint("DistanceY", 5, 1, 5, 2, 170.0))
sketch5.addConstraint(Sketcher.Constraint("DistanceY", 4, 2, -1, 1, 5.0))
sketch5.addConstraint(Sketcher.Constraint("DistanceX", 1, 1, 1, 2, 163.618))
sketch5.addConstraint(Sketcher.Constraint("DistanceY", 0, 2, 0, 1, 213.618))
sketch5.addConstraint(Sketcher.Constraint("DistanceX", 0, 2, -1, 1, 41.809))
sketch5.addConstraint(Sketcher.Constraint("DistanceY", 0, 2, -1, 1, 26.809))
pocket3 = body.newObject("PartDesign::Pocket", "Pocket002")
pocket3.Profile = sketch5
pocket3.Type = "ThroughAll"

sketch6 = body.newObject("Sketcher::SketchObject", "Sketch005")
sketch6.AttachmentSupport = (doc.getObject("XY_Plane"), [""])
sketch6.MapMode = "FlatFace"
sketch6.addGeometry(Part.Circle(V(35, 85, 0), V(0, 0, 1), 1.5), False)
sketch6.addGeometry(Part.Circle(V(35, 75, 0), V(0, 0, 1), 1.5), False)
sketch6.addGeometry(Part.Circle(V(45, 75, 0), V(0, 0, 1), 1.5), False)
sketch6.addGeometry(Part.Circle(V(45, 85, 0), V(0, 0, 1), 1.5), False)
sketch6.addConstraint(Sketcher.Constraint("Equal", 0, 1))
sketch6.addConstraint(Sketcher.Constraint("Equal", 1, 2))
sketch6.addConstraint(Sketcher.Constraint("Equal", 2, 3))
sketch6.addConstraint(Sketcher.Constraint("Horizontal", 1, 3, 2, 3))
sketch6.addConstraint(Sketcher.Constraint("Horizontal", 0, 3, 3, 3))
sketch6.addConstraint(Sketcher.Constraint("Vertical", 0, 3, 1, 3))
sketch6.addConstraint(Sketcher.Constraint("Vertical", 2, 3, 3, 3))
sketch6.addConstraint(Sketcher.Constraint("Diameter", 0, 3.0))
sketch6.addConstraint(Sketcher.Constraint("DistanceX", -1, 1, 0, 3, 35.0))
sketch6.addConstraint(Sketcher.Constraint("DistanceY", -1, 1, 0, 3, 85.0))
sketch6.addConstraint(Sketcher.Constraint("DistanceY", -1, 1, 1, 3, 75.0))
sketch6.addConstraint(Sketcher.Constraint("DistanceX", -1, 1, 2, 3, 45.0))
pocket4 = body.newObject("PartDesign::Pocket", "Pocket003")
pocket4.Profile = sketch6
pocket4.Type = "ThroughAll"
pocket4.Reversed = True

sketch7 = body.newObject("Sketcher::SketchObject", "Sketch006")
sketch7.AttachmentSupport = (doc.getObject("XY_Plane"), [""])
sketch7.MapMode = "FlatFace"
sketch7.AttachmentOffset = App.Placement(V(0, 0, 1.5), App.Rotation())
add_polygon(sketch7, [(0, 165), (0, -5), (6, -5), (6, 165)])
add_polygon(sketch7, [(74, 165), (74, -5), (80, -5), (80, 165)])
sketch7.addConstraint(Sketcher.Constraint("Vertical", 0))
sketch7.addConstraint(Sketcher.Constraint("Horizontal", 1))
sketch7.addConstraint(Sketcher.Constraint("Vertical", 2))
sketch7.addConstraint(Sketcher.Constraint("Horizontal", 3))
sketch7.addConstraint(Sketcher.Constraint("Vertical", 4))
sketch7.addConstraint(Sketcher.Constraint("Horizontal", 5))
sketch7.addConstraint(Sketcher.Constraint("Vertical", 6))
sketch7.addConstraint(Sketcher.Constraint("Horizontal", 7))
sketch7.addConstraint(Sketcher.Constraint("PointOnObject", 0, 2, -2))
sketch7.addConstraint(Sketcher.Constraint("Horizontal", 1, 2, 4, 2))
sketch7.addConstraint(Sketcher.Constraint("Horizontal", 3, 2, 6, 2))
sketch7.addConstraint(Sketcher.Constraint("Equal", 3, 5))
sketch7.addConstraint(Sketcher.Constraint("DistanceX", 1, 1, 1, 2, 6.0))
sketch7.addConstraint(Sketcher.Constraint("DistanceY", 0, 2, 0, 1, 170.0))
sketch7.addConstraint(Sketcher.Constraint("DistanceY", 0, 2, -1, 1, 5.0))
sketch7.addConstraint(Sketcher.Constraint("DistanceX", -1, 1, 4, 2, 74.0))
pocket5 = body.newObject("PartDesign::Pocket", "Pocket004")
pocket5.Profile = sketch7
pocket5.Length = 10
doc.recompute()

fillet2 = body.newObject("PartDesign::Fillet", "Fillet001")
fillet2.Base = (pocket5, edges_at(pocket5, [
    (6, 165, 0.75),
    (6, -5, 0.75),
    (74, -5, 0.75),
    (74, 165, 0.75),
]))
fillet2.Radius = 2
doc.recompute()

fillet3 = body.newObject("PartDesign::Fillet", "Fillet002")
fillet3.Base = (fillet2, edges_at(fillet2, [(6, 156.5, 0.75), (6, 153.5, 0.75)]))
fillet3.Radius = 1
doc.recompute()

fillet4 = body.newObject("PartDesign::Fillet", "Fillet003")
fillet4.Base = (fillet3, edges_at(fillet3, [
    (6, 106.5, 0.75),
    (6, 103.5, 0.75),
    (6, 56.5, 0.75),
    (6, 3.5, 0.75),
    (6, 53.5, 0.75),
    (6, 6.5, 0.75),
    (74, 156.5, 0.75),
    (74, 153.5, 0.75),
    (74, 106.5, 0.75),
    (74, 3.5, 0.75),
    (74, 103.5, 0.75),
    (74, 56.5, 0.75),
    (74, 6.5, 0.75),
    (74, 53.5, 0.75),
]))
fillet4.Radius = 1

doc.recompute()
